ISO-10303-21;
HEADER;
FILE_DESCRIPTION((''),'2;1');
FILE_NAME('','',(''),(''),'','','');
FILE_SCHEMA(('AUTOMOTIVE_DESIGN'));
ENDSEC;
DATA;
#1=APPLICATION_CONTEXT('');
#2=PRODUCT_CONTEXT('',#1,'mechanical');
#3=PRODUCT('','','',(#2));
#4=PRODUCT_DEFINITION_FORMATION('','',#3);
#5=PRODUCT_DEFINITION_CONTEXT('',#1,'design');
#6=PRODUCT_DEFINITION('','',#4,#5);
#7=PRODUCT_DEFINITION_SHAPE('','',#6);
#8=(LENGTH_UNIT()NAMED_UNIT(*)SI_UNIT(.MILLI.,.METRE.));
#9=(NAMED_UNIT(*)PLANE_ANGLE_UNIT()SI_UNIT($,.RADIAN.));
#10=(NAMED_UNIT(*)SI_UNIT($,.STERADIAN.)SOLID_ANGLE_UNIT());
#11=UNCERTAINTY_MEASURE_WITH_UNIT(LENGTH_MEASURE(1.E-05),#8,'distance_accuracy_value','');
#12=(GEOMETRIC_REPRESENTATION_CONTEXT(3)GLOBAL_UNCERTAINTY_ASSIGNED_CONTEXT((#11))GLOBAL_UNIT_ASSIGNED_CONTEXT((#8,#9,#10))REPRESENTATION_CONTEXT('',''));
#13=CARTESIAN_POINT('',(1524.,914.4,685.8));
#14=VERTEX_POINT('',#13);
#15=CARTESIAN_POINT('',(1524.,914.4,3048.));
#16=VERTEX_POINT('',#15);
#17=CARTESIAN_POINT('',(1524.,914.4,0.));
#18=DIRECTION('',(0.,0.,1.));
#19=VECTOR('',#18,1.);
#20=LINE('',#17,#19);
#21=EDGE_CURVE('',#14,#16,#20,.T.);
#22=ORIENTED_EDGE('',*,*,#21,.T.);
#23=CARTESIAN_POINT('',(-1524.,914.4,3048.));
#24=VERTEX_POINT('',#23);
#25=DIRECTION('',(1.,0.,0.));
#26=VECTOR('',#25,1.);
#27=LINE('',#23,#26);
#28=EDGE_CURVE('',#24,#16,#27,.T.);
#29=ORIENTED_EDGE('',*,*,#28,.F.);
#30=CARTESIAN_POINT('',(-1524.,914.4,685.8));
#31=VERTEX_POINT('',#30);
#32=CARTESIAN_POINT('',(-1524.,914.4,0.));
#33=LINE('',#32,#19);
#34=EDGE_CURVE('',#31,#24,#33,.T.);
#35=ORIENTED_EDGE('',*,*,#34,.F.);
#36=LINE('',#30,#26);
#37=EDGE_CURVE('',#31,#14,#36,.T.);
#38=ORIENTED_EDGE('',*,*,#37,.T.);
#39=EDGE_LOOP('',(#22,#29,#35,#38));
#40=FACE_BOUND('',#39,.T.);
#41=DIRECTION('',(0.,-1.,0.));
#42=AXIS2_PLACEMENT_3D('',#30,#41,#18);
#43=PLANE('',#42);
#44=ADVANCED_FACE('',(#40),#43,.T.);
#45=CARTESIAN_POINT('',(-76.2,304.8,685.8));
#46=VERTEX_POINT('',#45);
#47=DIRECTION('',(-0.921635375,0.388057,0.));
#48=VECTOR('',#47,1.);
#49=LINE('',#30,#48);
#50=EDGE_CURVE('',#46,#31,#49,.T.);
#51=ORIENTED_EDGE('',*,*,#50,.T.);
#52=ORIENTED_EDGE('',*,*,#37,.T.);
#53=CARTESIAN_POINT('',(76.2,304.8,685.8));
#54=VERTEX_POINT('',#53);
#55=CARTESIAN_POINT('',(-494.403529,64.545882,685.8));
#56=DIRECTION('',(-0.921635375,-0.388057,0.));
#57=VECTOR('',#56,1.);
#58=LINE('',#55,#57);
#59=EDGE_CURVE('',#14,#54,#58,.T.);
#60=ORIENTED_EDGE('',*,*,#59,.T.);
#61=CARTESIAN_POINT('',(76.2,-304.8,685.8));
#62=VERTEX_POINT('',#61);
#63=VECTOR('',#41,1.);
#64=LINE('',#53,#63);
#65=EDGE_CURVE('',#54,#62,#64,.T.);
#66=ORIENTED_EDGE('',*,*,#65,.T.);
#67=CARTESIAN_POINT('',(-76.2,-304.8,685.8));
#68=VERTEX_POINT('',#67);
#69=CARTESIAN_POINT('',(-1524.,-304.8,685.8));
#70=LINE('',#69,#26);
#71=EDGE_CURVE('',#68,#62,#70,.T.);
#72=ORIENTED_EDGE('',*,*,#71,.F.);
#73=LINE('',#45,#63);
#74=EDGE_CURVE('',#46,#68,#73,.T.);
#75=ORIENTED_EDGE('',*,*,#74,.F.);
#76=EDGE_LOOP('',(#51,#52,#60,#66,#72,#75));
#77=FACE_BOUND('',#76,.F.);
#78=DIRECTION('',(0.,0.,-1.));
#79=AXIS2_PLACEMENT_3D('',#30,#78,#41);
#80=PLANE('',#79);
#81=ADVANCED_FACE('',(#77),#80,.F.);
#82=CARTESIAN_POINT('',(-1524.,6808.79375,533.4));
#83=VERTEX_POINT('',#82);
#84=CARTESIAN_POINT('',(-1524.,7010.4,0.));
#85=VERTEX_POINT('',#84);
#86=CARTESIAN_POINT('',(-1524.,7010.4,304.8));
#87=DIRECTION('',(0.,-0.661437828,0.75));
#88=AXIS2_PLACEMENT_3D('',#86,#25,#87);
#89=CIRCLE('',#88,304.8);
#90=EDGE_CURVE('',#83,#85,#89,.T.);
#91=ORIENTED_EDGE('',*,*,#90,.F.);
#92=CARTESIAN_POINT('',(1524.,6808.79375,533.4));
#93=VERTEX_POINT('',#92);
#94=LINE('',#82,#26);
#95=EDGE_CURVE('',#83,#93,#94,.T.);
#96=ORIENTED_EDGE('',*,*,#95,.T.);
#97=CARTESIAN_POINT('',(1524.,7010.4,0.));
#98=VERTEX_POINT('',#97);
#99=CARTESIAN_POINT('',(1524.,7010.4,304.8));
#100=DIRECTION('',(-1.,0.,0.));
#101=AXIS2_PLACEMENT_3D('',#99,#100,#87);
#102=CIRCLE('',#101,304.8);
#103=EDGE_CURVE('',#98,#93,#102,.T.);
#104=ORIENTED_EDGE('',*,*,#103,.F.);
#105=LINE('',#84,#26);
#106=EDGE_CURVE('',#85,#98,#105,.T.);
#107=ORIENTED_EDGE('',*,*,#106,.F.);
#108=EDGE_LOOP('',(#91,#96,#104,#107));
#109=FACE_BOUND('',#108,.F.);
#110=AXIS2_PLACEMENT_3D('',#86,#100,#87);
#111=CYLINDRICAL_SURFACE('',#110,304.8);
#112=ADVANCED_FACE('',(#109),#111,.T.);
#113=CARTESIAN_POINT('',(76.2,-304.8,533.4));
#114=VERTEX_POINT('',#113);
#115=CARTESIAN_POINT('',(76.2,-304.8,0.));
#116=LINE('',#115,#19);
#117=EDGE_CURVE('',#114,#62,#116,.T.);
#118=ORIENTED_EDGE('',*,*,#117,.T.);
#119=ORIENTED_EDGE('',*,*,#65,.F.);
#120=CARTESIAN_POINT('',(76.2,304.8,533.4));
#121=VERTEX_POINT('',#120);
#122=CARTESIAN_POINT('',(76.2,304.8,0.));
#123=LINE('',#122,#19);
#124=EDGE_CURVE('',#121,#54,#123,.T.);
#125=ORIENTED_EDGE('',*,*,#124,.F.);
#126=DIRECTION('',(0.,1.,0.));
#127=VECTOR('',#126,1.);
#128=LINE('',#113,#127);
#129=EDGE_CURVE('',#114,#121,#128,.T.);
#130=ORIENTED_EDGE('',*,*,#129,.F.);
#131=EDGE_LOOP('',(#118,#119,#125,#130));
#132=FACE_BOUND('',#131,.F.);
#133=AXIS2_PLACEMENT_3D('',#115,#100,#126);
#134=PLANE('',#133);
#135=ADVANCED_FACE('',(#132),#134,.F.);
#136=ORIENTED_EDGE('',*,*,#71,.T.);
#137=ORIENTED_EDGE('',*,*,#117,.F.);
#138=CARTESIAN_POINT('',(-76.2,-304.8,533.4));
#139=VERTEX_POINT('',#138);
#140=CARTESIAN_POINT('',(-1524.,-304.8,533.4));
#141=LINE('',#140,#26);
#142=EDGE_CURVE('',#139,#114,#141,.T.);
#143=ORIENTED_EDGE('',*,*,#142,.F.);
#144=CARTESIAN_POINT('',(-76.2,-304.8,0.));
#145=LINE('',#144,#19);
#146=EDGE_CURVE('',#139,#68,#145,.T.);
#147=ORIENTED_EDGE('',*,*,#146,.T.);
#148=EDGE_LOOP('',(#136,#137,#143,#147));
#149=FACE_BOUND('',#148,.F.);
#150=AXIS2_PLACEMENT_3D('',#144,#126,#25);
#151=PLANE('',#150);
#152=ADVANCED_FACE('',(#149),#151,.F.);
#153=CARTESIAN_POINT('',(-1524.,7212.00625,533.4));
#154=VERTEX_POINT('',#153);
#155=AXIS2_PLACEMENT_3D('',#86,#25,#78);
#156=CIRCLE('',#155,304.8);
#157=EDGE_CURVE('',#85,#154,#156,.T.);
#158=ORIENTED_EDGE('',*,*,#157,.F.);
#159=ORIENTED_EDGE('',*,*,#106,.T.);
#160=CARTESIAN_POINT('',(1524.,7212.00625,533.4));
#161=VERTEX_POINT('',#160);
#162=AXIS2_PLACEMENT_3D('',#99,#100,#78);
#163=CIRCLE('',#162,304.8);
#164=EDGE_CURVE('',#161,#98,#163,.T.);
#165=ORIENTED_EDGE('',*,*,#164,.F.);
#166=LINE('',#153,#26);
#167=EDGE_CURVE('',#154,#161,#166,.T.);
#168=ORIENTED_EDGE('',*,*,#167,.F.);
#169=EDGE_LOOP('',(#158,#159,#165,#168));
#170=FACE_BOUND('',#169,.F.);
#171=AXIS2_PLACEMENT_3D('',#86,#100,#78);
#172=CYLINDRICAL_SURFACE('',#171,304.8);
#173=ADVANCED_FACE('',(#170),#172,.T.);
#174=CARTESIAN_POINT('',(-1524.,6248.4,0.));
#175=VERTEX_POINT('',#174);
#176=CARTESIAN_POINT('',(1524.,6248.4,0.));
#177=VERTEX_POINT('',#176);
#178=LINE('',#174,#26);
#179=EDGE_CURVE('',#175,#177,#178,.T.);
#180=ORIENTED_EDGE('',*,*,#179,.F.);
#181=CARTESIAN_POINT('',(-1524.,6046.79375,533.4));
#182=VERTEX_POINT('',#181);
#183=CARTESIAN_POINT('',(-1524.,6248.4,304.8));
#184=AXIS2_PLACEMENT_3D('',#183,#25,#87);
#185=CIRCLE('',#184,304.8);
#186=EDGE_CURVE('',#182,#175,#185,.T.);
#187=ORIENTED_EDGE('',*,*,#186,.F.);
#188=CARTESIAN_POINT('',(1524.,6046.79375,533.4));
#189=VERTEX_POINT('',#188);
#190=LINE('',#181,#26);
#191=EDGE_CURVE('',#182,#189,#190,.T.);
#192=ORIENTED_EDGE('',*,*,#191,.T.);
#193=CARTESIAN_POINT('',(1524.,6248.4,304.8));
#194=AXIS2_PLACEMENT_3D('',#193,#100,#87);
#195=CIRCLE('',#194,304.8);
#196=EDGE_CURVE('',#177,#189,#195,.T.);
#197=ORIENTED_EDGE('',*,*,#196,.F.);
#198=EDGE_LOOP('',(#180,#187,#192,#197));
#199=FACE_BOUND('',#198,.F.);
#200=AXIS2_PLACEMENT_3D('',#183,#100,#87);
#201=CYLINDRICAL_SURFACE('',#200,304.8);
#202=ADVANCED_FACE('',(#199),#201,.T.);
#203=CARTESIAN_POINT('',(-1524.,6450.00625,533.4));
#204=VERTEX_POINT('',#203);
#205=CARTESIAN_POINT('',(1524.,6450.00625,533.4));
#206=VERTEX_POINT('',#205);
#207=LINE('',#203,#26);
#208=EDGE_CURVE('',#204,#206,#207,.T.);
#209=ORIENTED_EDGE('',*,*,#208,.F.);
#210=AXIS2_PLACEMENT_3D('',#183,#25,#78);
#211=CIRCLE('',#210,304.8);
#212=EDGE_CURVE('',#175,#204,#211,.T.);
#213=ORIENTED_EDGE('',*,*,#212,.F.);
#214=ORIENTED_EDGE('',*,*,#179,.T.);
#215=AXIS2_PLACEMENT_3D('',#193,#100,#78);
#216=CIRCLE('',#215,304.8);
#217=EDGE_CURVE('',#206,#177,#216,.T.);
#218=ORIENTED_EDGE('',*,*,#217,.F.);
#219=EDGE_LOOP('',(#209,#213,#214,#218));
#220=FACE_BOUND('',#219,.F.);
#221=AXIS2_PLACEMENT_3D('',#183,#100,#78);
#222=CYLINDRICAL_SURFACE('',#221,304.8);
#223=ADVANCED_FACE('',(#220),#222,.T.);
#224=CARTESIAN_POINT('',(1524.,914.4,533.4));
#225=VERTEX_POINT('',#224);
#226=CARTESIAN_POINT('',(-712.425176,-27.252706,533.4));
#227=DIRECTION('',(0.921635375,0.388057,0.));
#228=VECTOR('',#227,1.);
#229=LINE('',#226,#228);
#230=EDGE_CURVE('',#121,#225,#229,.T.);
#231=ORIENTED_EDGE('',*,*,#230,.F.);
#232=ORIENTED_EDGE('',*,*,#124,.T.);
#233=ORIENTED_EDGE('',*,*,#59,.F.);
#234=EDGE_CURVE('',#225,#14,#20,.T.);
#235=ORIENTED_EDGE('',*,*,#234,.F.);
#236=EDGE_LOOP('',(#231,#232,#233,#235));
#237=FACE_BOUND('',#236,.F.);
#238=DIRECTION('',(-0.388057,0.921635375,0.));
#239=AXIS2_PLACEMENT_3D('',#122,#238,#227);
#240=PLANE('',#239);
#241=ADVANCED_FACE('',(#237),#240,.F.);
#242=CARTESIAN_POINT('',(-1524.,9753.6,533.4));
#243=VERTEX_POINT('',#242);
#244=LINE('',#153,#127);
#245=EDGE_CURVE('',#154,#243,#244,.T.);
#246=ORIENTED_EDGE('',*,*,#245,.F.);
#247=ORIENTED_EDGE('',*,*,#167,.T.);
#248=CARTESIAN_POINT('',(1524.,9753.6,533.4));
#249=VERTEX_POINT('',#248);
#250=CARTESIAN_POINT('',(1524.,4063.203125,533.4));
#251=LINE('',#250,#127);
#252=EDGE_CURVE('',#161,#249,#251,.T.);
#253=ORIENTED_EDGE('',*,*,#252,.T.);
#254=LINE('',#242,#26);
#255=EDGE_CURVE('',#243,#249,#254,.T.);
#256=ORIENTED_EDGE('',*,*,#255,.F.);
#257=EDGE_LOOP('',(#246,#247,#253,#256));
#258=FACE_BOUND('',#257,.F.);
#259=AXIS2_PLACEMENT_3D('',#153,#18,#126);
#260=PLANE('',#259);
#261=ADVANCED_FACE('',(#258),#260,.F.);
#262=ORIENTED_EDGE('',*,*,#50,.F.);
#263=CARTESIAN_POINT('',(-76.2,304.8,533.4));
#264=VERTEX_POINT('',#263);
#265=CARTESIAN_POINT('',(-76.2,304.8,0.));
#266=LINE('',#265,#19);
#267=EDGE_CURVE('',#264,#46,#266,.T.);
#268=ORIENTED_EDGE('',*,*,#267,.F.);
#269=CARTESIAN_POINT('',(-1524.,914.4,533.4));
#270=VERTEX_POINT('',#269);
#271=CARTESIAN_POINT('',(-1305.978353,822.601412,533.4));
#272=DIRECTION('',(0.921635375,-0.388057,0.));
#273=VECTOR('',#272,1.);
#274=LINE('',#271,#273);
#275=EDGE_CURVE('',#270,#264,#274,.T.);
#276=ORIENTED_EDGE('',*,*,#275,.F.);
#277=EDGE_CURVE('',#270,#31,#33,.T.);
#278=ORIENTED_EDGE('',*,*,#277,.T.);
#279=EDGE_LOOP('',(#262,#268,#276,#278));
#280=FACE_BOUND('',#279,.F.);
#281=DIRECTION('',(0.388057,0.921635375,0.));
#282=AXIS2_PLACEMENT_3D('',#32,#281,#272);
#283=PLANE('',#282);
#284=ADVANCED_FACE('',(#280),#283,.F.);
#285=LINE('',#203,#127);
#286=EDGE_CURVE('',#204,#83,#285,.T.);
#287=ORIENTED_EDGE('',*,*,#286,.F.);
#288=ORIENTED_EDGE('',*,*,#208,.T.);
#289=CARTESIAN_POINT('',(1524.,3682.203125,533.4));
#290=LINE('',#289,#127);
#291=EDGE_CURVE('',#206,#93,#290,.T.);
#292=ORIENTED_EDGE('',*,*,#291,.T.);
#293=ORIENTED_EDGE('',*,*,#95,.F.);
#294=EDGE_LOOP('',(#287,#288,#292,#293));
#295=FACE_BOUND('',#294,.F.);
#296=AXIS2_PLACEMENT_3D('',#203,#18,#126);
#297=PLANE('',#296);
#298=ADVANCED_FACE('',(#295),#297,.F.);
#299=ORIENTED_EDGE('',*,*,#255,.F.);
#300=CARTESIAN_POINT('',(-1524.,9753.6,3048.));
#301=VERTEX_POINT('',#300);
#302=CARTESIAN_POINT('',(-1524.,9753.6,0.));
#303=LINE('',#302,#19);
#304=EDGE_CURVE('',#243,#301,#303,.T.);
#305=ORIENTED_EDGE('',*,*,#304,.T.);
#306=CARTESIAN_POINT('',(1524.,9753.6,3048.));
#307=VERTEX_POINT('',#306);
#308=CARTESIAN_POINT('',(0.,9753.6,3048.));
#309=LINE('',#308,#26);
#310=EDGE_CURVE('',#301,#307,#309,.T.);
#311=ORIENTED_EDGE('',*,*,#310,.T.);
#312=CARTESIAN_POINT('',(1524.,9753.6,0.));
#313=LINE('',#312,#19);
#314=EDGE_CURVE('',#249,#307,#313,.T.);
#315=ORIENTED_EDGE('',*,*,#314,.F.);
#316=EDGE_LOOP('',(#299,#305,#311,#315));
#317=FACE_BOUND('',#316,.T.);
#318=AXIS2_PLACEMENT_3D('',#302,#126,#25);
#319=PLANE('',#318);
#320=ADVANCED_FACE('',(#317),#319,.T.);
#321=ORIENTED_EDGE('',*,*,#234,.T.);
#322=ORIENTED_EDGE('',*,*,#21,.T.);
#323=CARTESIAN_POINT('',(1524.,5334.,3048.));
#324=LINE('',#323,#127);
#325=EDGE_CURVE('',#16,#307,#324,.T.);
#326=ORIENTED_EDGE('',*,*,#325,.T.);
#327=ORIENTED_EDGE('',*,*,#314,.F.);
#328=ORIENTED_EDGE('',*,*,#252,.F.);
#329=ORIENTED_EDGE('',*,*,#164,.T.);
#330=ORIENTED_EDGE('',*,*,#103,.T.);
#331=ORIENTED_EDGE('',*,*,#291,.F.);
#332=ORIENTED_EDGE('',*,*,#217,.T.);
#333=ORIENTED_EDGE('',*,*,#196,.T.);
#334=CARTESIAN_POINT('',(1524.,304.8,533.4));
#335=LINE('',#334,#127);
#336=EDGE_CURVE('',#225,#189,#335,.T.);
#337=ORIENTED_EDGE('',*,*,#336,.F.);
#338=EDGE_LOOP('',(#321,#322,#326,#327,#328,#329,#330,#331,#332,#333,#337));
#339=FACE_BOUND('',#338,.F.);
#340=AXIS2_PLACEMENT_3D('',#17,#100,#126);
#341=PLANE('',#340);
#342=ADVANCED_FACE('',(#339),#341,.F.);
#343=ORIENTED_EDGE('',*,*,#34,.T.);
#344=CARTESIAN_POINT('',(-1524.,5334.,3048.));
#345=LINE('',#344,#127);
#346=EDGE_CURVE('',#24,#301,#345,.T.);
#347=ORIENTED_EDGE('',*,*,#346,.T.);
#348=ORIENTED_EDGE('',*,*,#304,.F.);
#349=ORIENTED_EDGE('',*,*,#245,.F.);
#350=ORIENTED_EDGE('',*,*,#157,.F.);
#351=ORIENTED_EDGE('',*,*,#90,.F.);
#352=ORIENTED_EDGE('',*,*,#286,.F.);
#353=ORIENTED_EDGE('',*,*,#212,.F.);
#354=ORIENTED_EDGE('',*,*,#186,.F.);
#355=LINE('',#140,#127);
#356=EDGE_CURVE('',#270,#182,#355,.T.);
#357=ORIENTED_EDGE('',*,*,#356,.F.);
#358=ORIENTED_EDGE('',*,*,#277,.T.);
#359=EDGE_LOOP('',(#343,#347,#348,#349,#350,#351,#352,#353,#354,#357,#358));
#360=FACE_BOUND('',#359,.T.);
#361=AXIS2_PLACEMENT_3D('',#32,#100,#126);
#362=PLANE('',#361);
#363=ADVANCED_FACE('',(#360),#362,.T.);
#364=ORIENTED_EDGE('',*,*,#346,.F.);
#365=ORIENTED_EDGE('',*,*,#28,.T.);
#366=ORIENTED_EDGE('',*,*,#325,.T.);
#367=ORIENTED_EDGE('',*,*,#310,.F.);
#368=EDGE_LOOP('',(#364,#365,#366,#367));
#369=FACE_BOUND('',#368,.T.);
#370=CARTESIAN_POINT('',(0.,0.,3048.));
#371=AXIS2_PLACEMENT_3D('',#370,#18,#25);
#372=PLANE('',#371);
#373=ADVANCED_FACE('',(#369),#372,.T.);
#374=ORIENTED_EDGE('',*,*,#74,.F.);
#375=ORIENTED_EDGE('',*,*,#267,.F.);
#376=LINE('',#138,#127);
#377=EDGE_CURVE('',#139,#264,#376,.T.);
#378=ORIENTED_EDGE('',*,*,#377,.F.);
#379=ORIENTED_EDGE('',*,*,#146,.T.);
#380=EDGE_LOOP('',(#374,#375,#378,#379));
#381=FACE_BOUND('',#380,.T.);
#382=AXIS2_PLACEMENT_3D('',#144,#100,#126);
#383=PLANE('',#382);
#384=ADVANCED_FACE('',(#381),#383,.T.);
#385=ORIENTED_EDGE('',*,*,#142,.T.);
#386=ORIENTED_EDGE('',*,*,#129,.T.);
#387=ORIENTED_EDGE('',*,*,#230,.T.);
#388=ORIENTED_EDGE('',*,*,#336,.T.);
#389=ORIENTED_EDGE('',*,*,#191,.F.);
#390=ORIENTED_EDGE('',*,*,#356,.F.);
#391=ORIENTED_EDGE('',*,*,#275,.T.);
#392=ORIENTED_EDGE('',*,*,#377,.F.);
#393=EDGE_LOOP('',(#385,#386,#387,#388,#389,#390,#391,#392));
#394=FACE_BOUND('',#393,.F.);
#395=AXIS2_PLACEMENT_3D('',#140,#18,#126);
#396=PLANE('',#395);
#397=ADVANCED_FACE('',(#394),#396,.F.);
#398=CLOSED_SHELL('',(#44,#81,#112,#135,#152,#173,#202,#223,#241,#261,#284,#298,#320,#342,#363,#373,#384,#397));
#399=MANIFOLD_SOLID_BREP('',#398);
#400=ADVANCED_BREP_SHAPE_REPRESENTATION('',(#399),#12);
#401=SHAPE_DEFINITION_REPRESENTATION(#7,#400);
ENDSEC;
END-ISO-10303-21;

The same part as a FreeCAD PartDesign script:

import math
import FreeCAD as App
import Part
import Sketcher
from FreeCAD import Vector
Q = App.Units.Quantity


def add_polygon(sketch, points):
    """Adds a closed chain of lines whose ends are joined by coincident constraints."""
    first, n = sketch.GeometryCount, len(points)
    for a, b in zip(points, points[1:] + points[:1]):
        sketch.addGeometry(Part.LineSegment(App.Vector(*a, 0), App.Vector(*b, 0)), False)
    for i in range(n):
        sketch.addConstraint(Sketcher.Constraint("Coincident", first + i, 2, first + (i + 1) % n, 1))

doc = App.newDocument("Part")
body = doc.addObject("PartDesign::Body", "Body")

# Sketch on XY plane
sketch1 = body.newObject("Sketcher::SketchObject", "Sketch")
sketch1.AttachmentSupport = (doc.getObject("XY_Plane"), [""])
sketch1.MapMode = "FlatFace"
add_polygon(sketch1, [(-76, 305), (-76, -305), (76, -305), (76, 305), (1524, 914), (1524, 9754), (-1524, 9754), (-1524, 914)])  # lines 0-7
sketch1.addConstraint([
    Sketcher.Constraint("Vertical", 0),
    Sketcher.Constraint("Horizontal", 1),
    Sketcher.Constraint("Vertical", 2),
    Sketcher.Constraint("Vertical", 4),
    Sketcher.Constraint("Horizontal", 5),
    Sketcher.Constraint("Vertical", 6),
    Sketcher.Constraint("Symmetric", 0, 2, 2, 2, -1, 1),
    Sketcher.Constraint("Symmetric", 3, 2, 6, 2, -2),
    Sketcher.Constraint("Horizontal", 2, 2, 7, 2),
    Sketcher.Constraint("DistanceX", 1, 1, 1, 2, Q("6 in")),
    Sketcher.Constraint("DistanceX", 5, 2, 5, 1, Q("120 in")),
    Sketcher.Constraint("DistanceY", 0, 2, 0, 1, Q("24 in")),
    Sketcher.Constraint("DistanceY", 4, 1, 4, 2, Q("348 in")),
    Sketcher.Constraint("DistanceY", -1, 1, 3, 2, Q("36 in")),
])
pad1 = body.newObject("PartDesign::Pad", "Pad")
pad1.Profile = sketch1
pad1.Length = Q("120 in")

# Sketch on YZ plane
sketch2 = body.newObject("Sketcher::SketchObject", "Sketch001")
sketch2.AttachmentSupport = (doc.getObject("YZ_Plane"), [""])
sketch2.MapMode = "FlatFace"
sketch2.AttachmentOffset = App.Placement(Vector(0, 0, -60 * 25.4), App.Rotation())
sketch2.addGeometry(Part.ArcOfCircle(Part.Circle(Vector(6248, 305, 0), Vector(0, 0, 1), 305), math.radians(131), math.radians(270)), False)  # 0
sketch2.addGeometry(Part.LineSegment(Vector(6248, 0, 0), Vector(-305, 0, 0)), False)  # 1
sketch2.addGeometry(Part.LineSegment(Vector(-305, 0, 0), Vector(-305, 533, 0)), False)  # 2
sketch2.addGeometry(Part.LineSegment(Vector(-305, 533, 0), Vector(6047, 533, 0)), False)  # 3
sketch2.addGeometry(Part.ArcOfCircle(Part.Circle(Vector(7010, 305, 0), Vector(0, 0, 1), 305), math.radians(131), math.radians(270)), False)  # 4
sketch2.addGeometry(Part.LineSegment(Vector(7010, 0, 0), Vector(6248, 0, 0)), False)  # 5
sketch2.addGeometry(Part.ArcOfCircle(Part.Circle(Vector(6248, 305, 0), Vector(0, 0, 1), 305), math.radians(-90), math.radians(49)), False)  # 6
sketch2.addGeometry(Part.LineSegment(Vector(6450, 533, 0), Vector(6809, 533, 0)), False)  # 7
sketch2.addGeometry(Part.LineSegment(Vector(7212, 533, 0), Vector(9754, 533, 0)), False)  # 8
sketch2.addGeometry(Part.LineSegment(Vector(9754, 533, 0), Vector(9754, 0, 0)), False)  # 9
sketch2.addGeometry(Part.LineSegment(Vector(9754, 0, 0), Vector(7010, 0, 0)), False)  # 10
sketch2.addGeometry(Part.ArcOfCircle(Part.Circle(Vector(7010, 305, 0), Vector(0, 0, 1), 305), math.radians(-90), math.radians(49)), False)  # 11
add_polygon(sketch2, [(914, 3048), (914, 686), (-305, 686), (-305, 3048)])  # lines 12-15
sketch2.addConstraint([
    Sketcher.Constraint("Tangent", 0, 2, 1, 1),
    Sketcher.Constraint("Coincident", 1, 2, 2, 1),
    Sketcher.Constraint("Coincident", 2, 2, 3, 1),
    Sketcher.Constraint("Coincident", 3, 2, 0, 1),
    Sketcher.Constraint("Tangent", 4, 2, 5, 1),
    Sketcher.Constraint("Tangent", 5, 2, 6, 1),
    Sketcher.Constraint("Coincident", 6, 2, 7, 1),
    Sketcher.Constraint("Coincident", 7, 2, 4, 1),
    Sketcher.Constraint("Coincident", 8, 2, 9, 1),
    Sketcher.Constraint("Coincident", 9, 2, 10, 1),
    Sketcher.Constraint("Tangent", 10, 2, 11, 1),
    Sketcher.Constraint("Coincident", 11, 2, 8, 1),
    Sketcher.Constraint("Horizontal", 1),
    Sketcher.Constraint("Vertical", 2),
    Sketcher.Constraint("Horizontal", 3),
    Sketcher.Constraint("Horizontal", 5),
    Sketcher.Constraint("Horizontal", 7),
    Sketcher.Constraint("Horizontal", 8),
    Sketcher.Constraint("Vertical", 9),
    Sketcher.Constraint("Horizontal", 10),
    Sketcher.Constraint("Vertical", 12),
    Sketcher.Constraint("Horizontal", 13),
    Sketcher.Constraint("Vertical", 14),
    Sketcher.Constraint("Horizontal", 15),
    Sketcher.Constraint("Coincident", 6, 3, 0, 3),
    Sketcher.Constraint("Coincident", 11, 3, 4, 3),
    Sketcher.Constraint("Equal", 0, 4),
    Sketcher.Constraint("Equal", 4, 6),
    Sketcher.Constraint("Equal", 6, 11),
    Sketcher.Constraint("PointOnObject", 0, 2, -1),
    Sketcher.Constraint("Horizontal", 3, 2, 6, 2),
    Sketcher.Constraint("Horizontal", 7, 2, 8, 2),
    Sketcher.Constraint("Vertical", 2, 2, 13, 2),
    Sketcher.Constraint("Radius", 0, Q("12 in")),
    Sketcher.Constraint("DistanceX", 1, 2, 1, 1, Q("258 in")),
    Sketcher.Constraint("DistanceX", 5, 2, 5, 1, Q("30 in")),
    Sketcher.Constraint("DistanceX", 10, 2, 10, 1, Q("108 in")),
    Sketcher.Constraint("DistanceX", 13, 2, 13, 1, Q("48 in")),
    Sketcher.Constraint("DistanceY", 2, 1, 2, 2, Q("21 in")),
    Sketcher.Constraint("DistanceY", 12, 2, 12, 1, Q("93 in")),
    Sketcher.Constraint("DistanceX", -1, 1, 0, 3, Q("246 in")),
    Sketcher.Constraint("DistanceY", -1, 1, 12, 2, Q("27 in")),
])
pocket1 = body.newObject("PartDesign::Pocket", "Pocket")
pocket1.Profile = sketch2
pocket1.Type = "ThroughAll"
pocket1.Reversed = True

doc.recompute()
